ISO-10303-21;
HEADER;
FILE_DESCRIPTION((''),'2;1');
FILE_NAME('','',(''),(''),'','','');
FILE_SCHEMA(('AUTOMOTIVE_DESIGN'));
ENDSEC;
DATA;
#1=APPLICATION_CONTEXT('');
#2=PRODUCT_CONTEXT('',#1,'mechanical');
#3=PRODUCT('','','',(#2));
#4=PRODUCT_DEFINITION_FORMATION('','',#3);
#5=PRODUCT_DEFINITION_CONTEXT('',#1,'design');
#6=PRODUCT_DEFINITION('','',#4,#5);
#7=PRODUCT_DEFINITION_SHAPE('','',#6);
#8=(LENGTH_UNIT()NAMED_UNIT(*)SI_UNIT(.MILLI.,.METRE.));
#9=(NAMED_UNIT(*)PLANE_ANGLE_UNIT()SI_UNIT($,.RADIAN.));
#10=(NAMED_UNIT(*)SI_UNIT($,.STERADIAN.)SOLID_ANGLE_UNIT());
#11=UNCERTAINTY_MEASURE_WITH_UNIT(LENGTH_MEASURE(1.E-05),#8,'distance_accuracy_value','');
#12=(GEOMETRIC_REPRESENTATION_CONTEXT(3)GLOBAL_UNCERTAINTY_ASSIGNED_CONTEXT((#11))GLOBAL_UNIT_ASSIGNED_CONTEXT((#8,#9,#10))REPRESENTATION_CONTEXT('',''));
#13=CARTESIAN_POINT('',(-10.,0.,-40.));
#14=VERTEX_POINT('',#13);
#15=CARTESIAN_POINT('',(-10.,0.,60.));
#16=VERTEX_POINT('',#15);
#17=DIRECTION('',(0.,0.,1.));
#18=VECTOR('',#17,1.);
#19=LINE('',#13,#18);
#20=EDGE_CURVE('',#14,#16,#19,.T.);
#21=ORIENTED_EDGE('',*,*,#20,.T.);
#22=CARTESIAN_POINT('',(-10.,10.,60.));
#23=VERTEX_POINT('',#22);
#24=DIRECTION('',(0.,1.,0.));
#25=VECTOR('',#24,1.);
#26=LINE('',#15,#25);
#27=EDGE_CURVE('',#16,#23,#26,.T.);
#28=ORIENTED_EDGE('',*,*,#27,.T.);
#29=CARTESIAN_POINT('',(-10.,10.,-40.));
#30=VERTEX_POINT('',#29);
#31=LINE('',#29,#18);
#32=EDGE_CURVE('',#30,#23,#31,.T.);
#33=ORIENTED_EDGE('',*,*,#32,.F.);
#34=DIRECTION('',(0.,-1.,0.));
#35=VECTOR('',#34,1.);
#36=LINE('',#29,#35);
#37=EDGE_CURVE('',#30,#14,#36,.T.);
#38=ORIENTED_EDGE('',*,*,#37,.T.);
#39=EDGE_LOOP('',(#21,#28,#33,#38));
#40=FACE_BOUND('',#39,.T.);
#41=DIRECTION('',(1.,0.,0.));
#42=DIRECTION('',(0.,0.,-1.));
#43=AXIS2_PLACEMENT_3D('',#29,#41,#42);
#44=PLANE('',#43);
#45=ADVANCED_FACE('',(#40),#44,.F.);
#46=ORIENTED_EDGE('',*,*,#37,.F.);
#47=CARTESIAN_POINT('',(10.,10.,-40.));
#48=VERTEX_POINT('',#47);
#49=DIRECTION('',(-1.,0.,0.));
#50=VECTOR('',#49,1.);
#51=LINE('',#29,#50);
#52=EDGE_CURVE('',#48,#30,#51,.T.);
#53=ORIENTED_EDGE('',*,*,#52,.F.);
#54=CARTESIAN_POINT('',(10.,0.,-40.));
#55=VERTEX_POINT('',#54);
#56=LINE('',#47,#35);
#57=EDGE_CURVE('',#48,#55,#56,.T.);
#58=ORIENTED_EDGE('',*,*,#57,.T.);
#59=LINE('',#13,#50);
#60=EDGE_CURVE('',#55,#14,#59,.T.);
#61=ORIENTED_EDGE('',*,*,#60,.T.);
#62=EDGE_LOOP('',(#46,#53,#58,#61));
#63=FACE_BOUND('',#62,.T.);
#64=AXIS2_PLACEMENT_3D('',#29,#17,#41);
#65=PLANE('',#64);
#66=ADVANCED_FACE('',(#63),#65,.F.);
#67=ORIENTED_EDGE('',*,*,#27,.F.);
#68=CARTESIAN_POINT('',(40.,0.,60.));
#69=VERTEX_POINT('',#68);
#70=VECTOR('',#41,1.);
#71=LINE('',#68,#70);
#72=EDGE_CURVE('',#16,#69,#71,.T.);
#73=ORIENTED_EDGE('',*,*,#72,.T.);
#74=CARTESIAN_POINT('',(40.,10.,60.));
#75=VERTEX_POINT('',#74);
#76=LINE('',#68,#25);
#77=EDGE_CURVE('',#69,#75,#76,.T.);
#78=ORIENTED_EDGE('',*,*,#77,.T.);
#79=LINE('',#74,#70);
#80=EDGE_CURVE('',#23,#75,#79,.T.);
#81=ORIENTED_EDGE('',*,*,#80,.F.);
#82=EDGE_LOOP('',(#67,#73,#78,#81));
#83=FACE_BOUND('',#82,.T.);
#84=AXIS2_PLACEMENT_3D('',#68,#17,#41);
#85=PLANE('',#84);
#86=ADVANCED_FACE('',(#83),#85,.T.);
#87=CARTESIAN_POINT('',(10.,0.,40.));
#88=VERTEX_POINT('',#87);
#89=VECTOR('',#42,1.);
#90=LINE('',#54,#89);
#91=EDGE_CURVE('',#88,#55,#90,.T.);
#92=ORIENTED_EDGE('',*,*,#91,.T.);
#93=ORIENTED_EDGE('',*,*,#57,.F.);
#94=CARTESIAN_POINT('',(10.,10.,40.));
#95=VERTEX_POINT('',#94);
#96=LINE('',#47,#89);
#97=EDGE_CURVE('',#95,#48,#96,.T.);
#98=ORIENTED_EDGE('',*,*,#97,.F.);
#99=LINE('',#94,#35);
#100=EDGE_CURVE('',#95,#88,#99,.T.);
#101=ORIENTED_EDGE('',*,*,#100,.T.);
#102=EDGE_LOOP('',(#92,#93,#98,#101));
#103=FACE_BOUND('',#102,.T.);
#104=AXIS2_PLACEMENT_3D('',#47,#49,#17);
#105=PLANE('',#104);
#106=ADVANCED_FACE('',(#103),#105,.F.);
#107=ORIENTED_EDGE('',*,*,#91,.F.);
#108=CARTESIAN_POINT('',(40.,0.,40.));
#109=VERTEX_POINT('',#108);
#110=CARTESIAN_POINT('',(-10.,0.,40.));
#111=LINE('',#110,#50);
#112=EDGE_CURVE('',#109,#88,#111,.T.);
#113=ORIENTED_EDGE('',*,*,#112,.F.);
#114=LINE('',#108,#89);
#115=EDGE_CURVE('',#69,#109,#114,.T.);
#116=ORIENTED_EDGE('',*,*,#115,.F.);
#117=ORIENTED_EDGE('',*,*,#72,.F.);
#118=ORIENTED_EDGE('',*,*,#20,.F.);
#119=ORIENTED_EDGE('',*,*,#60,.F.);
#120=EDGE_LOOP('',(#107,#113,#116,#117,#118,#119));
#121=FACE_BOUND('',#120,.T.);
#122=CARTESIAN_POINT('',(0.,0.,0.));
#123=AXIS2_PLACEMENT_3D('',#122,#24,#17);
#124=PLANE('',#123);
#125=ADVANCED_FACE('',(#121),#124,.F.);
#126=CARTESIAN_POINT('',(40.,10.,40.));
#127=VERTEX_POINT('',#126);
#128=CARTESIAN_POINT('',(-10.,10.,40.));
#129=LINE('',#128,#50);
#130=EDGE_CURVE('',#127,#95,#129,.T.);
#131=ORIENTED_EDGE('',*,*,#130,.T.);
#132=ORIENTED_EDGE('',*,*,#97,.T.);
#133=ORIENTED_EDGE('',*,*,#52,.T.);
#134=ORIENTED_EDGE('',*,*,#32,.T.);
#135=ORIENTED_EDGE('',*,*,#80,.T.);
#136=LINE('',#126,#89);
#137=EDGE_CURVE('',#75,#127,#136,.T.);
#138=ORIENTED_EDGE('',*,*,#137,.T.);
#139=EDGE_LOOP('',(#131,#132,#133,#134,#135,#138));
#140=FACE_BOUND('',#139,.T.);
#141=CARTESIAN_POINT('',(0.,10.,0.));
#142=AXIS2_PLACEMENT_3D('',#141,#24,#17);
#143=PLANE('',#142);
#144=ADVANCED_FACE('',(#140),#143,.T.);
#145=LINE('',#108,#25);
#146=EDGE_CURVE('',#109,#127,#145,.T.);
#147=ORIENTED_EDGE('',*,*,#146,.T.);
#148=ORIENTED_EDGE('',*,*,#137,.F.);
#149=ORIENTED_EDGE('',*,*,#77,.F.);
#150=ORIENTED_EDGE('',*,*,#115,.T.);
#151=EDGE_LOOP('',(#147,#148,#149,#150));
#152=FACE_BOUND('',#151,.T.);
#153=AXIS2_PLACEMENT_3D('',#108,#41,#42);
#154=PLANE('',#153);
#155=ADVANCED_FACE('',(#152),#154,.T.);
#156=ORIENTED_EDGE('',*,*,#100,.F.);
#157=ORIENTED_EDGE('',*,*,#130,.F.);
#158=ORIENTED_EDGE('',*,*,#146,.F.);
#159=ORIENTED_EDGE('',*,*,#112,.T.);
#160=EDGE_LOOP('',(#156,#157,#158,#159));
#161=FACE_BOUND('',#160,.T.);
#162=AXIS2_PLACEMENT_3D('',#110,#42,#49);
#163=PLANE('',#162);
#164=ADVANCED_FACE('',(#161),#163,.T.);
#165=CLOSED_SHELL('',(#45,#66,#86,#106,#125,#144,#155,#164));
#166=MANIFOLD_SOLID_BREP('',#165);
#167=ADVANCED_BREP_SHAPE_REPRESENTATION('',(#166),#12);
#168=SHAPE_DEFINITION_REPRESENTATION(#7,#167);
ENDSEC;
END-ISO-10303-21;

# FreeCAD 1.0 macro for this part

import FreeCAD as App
import Part
import Sketcher

doc = App.newDocument("Part")
params = doc.addObject("Spreadsheet::Sheet", "Params")
for row, (alias, value) in enumerate([
    ("sketch1_width", "20 mm"),
    ("sketch1_height", "80 mm"),
    ("pad1_length", "10 mm"),
    ("sketch2_width", "50 mm"),
    ("sketch2_height", "20 mm"),
    ("pad2_length", "10 mm"),
], start=1):
    params.set(f"A{row}", alias)
    params.set(f"B{row}", "=" + value)
    params.setAlias(f"B{row}", alias)

body = doc.addObject("PartDesign::Body", "Body")

# Sketch on XZ plane
sketch1 = body.newObject("Sketcher::SketchObject", "Sketch")
sketch1.AttachmentSupport = (doc.getObject("XZ_Plane"), [""])
sketch1.MapMode = "FlatFace"
sketch1.addGeometry([
    Part.LineSegment(App.Vector(-10, -40, 0), App.Vector(-10, 40, 0)),
    Part.LineSegment(App.Vector(-10, 40, 0), App.Vector(10, 40, 0)),
    Part.LineSegment(App.Vector(10, 40, 0), App.Vector(10, -40, 0)),
    Part.LineSegment(App.Vector(10, -40, 0), App.Vector(-10, -40, 0)),
], False)
sketch1.addConstraint([
    Sketcher.Constraint("Coincident", 0, 2, 1, 1),
    Sketcher.Constraint("Coincident", 1, 2, 2, 1),
    Sketcher.Constraint("Coincident", 2, 2, 3, 1),
    Sketcher.Constraint("Coincident", 3, 2, 0, 1),
    Sketcher.Constraint("Vertical", 0),
    Sketcher.Constraint("Horizontal", 1),
    Sketcher.Constraint("Vertical", 2),
    Sketcher.Constraint("Horizontal", 3),
    Sketcher.Constraint("Symmetric", 0, 2, 2, 2, -1, 1),
    Sketcher.Constraint("DistanceX", 1, 1, 1, 2, 20.0),
    Sketcher.Constraint("DistanceY", 0, 1, 0, 2, 80.0),
])
sketch1.setExpression("Constraints[9]", "Params.sketch1_width")
sketch1.setExpression("Constraints[10]", "Params.sketch1_height")
pad1 = body.newObject("PartDesign::Pad", "Pad")
pad1.Profile = sketch1
pad1.setExpression("Length", "Params.pad1_length")
pad1.Reversed = True

# Sketch on XZ plane
sketch2 = body.newObject("Sketcher::SketchObject", "Sketch001")
sketch2.AttachmentSupport = (doc.getObject("XZ_Plane"), [""])
sketch2.MapMode = "FlatFace"
sketch2.AttachmentOffset = App.Placement(App.Vector(0, 0, -10), App.Rotation())
sketch2.addGeometry([
    Part.LineSegment(App.Vector(-10, 40, 0), App.Vector(-10, 60, 0)),
    Part.LineSegment(App.Vector(-10, 60, 0), App.Vector(40, 60, 0)),
    Part.LineSegment(App.Vector(40, 60, 0), App.Vector(40, 40, 0)),
    Part.LineSegment(App.Vector(40, 40, 0), App.Vector(-10, 40, 0)),
], False)
sketch2.addConstraint([
    Sketcher.Constraint("Coincident", 0, 2, 1, 1),
    Sketcher.Constraint("Coincident", 1, 2, 2, 1),
    Sketcher.Constraint("Coincident", 2, 2, 3, 1),
    Sketcher.Constraint("Coincident", 3, 2, 0, 1),
    Sketcher.Constraint("Vertical", 0),
    Sketcher.Constraint("Horizontal", 1),
    Sketcher.Constraint("Vertical", 2),
    Sketcher.Constraint("Horizontal", 3),
    Sketcher.Constraint("DistanceX", 1, 1, 1, 2, 50.0),
    Sketcher.Constraint("DistanceY", 0, 1, 0, 2, 20.0),
    Sketcher.Constraint("DistanceX", 0, 2, -1, 1, 10.0),
    Sketcher.Constraint("DistanceY", -1, 1, 0, 2, 60.0),
])
sketch2.setExpression("Constraints[8]", "Params.sketch2_width")
sketch2.setExpression("Constraints[9]", "Params.sketch2_height")
pad2 = body.newObject("PartDesign::Pad", "Pad001")
pad2.Profile = sketch2
pad2.setExpression("Length", "Params.pad2_length")

doc.recompute()
